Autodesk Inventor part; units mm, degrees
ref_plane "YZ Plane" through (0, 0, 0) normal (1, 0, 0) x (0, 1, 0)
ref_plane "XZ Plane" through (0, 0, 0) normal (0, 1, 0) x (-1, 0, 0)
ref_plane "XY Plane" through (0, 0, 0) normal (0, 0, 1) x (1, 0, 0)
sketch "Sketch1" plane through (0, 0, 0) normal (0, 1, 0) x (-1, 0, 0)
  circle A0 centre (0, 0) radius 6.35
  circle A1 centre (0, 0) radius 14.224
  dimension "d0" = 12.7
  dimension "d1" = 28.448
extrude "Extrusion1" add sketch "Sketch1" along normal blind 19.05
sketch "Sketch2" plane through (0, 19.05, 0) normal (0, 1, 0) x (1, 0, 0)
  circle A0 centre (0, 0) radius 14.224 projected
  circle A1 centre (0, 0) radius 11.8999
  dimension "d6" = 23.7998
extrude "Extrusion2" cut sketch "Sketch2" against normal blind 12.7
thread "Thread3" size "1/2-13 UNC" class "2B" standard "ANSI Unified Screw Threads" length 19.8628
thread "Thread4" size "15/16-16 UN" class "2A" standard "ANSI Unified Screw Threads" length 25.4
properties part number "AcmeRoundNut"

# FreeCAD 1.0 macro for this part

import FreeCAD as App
import Part
import Sketcher
from FreeCAD import Vector
Q = App.Units.Quantity

doc = App.newDocument("Part")
body = doc.addObject("PartDesign::Body", "Body")

sketch1 = doc.addObject("Sketcher::SketchObject", "Sketch")
body.addObject(sketch1)
sketch1.AttachmentSupport = (doc.XZ_Plane, [""])
sketch1.MapMode = "FlatFace"
sketch1.addGeometry([
    Part.Circle(Vector(0, 0, 0), Vector(0, 0, 1), 14.224),
    Part.Circle(Vector(0, 0, 0), Vector(0, 0, 1), 6.35),
], False)
sketch1.addConstraint([
    Sketcher.Constraint("Coincident", 0, 3, -1, 1),
    Sketcher.Constraint("Coincident", 1, 3, -1, 1),
    Sketcher.Constraint("Diameter", 1, Q("0.5 in")),
    Sketcher.Constraint("Diameter", 0, Q("1.12 in")),
])
pad1 = doc.addObject("PartDesign::Pad", "Pad")
body.addObject(pad1)
pad1.Profile = sketch1
pad1.Length = Q("0.75 in")
pad1.Reversed = True

sketch2 = doc.addObject("Sketcher::SketchObject", "Sketch001")
body.addObject(sketch2)
sketch2.AttachmentSupport = (doc.XZ_Plane, [""])
sketch2.MapMode = "FlatFace"
sketch2.AttachmentOffset = App.Placement(Vector(0, 0, -0.75 * 25.4), App.Rotation())
sketch2.addGeometry([
    Part.Circle(Vector(0, 0, 0), Vector(0, 0, 1), 14.224),
    Part.Circle(Vector(0, 0, 0), Vector(0, 0, 1), 11.8999),
], False)
sketch2.addConstraint([
    Sketcher.Constraint("Coincident", 0, 3, -1, 1),
    Sketcher.Constraint("Coincident", 1, 3, -1, 1),
    Sketcher.Constraint("Diameter", 1, Q("0.937 in")),
    Sketcher.Constraint("Diameter", 0, Q("1.12 in")),
])
pocket1 = doc.addObject("PartDesign::Pocket", "Pocket")
body.addObject(pocket1)
pocket1.Profile = sketch2
pocket1.Length = Q("0.5 in")
pocket1.Reversed = True

doc.recompute()
